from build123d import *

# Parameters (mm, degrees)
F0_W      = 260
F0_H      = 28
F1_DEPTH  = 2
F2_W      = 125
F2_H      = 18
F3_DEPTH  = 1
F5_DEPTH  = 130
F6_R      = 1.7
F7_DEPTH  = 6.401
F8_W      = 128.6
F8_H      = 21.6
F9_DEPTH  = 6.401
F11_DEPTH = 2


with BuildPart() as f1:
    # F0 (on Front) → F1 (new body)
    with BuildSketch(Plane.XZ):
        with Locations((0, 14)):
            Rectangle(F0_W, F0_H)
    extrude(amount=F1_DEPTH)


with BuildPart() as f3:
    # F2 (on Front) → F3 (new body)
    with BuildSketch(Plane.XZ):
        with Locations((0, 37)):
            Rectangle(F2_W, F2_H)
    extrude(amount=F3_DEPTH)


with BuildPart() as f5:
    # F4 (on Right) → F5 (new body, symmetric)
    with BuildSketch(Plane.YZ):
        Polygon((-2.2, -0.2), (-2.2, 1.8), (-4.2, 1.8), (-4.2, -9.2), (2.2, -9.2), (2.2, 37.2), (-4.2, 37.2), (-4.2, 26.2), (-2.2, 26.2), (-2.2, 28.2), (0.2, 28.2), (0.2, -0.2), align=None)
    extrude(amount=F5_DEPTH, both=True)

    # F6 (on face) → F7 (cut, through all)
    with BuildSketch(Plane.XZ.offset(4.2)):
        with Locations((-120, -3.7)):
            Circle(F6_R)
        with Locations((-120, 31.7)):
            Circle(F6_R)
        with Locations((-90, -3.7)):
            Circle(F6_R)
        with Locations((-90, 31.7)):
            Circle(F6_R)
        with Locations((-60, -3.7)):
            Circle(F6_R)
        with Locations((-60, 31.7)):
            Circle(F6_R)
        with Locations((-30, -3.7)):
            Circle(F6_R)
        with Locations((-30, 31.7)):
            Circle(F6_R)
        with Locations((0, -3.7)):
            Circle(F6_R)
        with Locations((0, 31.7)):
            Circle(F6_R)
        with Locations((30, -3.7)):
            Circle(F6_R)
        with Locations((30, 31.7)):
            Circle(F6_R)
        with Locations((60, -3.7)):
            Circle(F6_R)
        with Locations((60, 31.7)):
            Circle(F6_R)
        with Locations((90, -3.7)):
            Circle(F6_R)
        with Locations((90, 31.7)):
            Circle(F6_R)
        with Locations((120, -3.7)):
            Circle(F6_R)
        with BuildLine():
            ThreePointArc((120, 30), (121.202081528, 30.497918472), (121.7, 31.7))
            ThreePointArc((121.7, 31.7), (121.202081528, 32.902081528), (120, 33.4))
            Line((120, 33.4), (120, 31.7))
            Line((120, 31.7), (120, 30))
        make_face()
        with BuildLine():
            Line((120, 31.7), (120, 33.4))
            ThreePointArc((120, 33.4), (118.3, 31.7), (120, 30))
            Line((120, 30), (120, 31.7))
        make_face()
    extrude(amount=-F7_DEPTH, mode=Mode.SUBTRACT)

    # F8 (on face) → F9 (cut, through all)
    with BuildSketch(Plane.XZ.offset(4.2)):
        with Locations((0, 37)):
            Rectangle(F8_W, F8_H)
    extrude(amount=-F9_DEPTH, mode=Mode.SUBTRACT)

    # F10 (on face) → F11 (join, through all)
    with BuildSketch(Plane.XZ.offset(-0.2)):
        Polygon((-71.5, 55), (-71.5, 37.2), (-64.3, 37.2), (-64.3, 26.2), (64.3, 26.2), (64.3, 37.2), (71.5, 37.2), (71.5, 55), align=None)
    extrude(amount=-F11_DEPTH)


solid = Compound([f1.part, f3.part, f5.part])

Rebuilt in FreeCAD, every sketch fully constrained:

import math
import FreeCAD as App
import Part
import Sketcher
from FreeCAD import Vector


def add_polygon(sketch, points):
    """Adds a closed chain of lines whose ends are joined by coincident constraints."""
    first, n = sketch.GeometryCount, len(points)
    for a, b in zip(points, points[1:] + points[:1]):
        sketch.addGeometry(Part.LineSegment(App.Vector(*a, 0), App.Vector(*b, 0)), False)
    for i in range(n):
        sketch.addConstraint(Sketcher.Constraint("Coincident", first + i, 2, first + (i + 1) % n, 1))

doc = App.newDocument("Part")
params = doc.addObject("Spreadsheet::Sheet", "Params")
for row, (alias, value) in enumerate([
    ("sketch1_width", "260 mm"),
    ("sketch1_height", "28 mm"),
    ("pad1_length", "2 mm"),
    ("sketch2_width", "125 mm"),
    ("sketch2_height", "18 mm"),
    ("pad2_length", "1 mm"),
    ("sketch3_width", "2 mm"),
    ("sketch3_height", "11 mm"),
    ("sketch3_width2", "6.4 mm"),
    ("sketch3_width3", "2.4 mm"),
    ("sketch3_height2", "46.4 mm"),
    ("pad3_length", "260 mm"),
    ("sketch4_diameter", "3.4 mm"),
    ("sketch5_width", "128.6 mm"),
    ("sketch5_height", "21.6 mm"),
    ("sketch6_width", "143 mm"),
    ("sketch6_height", "11 mm"),
    ("sketch6_width2", "7.2 mm"),
    ("sketch6_height2", "17.8 mm"),
    ("pad4_length", "2 mm"),
], start=1):
    params.set(f"A{row}", alias)
    params.set(f"B{row}", "=" + value)
    params.setAlias(f"B{row}", alias)

body = doc.addObject("PartDesign::Body", "Body")

# Sketch on XZ plane
sketch1 = doc.addObject("Sketcher::SketchObject", "Sketch")
body.addObject(sketch1)
sketch1.AttachmentSupport = (doc.XZ_Plane, [""])
sketch1.MapMode = "FlatFace"
add_polygon(sketch1, [(-130, 28), (-130, 0), (130, 0), (130, 28)])  # lines 0-3
sketch1.addConstraint([
    Sketcher.Constraint("Vertical", 0),
    Sketcher.Constraint("Horizontal", 1),
    Sketcher.Constraint("Vertical", 2),
    Sketcher.Constraint("Horizontal", 3),
    Sketcher.Constraint("Symmetric", 0, 2, 1, 2, -1, 1),
    Sketcher.Constraint("DistanceX", 1, 1, 1, 2, 260.0),
    Sketcher.Constraint("DistanceY", 0, 2, 0, 1, 28.0),
])
sketch1.setExpression("Constraints[9]", "Params.sketch1_width")
sketch1.setExpression("Constraints[10]", "Params.sketch1_height")
pad1 = doc.addObject("PartDesign::Pad", "Pad")
body.addObject(pad1)
pad1.Profile = sketch1
pad1.setExpression("Length", "Params.pad1_length")
body2 = doc.addObject("PartDesign::Body", "Body001")

# Sketch on XZ plane
sketch2 = doc.addObject("Sketcher::SketchObject", "Sketch001")
body2.addObject(sketch2)
sketch2.AttachmentSupport = (doc.getObject("XZ_Plane001"), [""])
sketch2.MapMode = "FlatFace"
add_polygon(sketch2, [(-62, 46), (-62, 28), (62, 28), (62, 46)])  # lines 0-3
sketch2.addConstraint([
    Sketcher.Constraint("Vertical", 0),
    Sketcher.Constraint("Horizontal", 1),
    Sketcher.Constraint("Vertical", 2),
    Sketcher.Constraint("Horizontal", 3),
    Sketcher.Constraint("DistanceX", 1, 1, 1, 2, 125.0),
    Sketcher.Constraint("DistanceY", 0, 2, 0, 1, 18.0),
    Sketcher.Constraint("DistanceY", -1, 1, 0, 2, 28.0),
    Sketcher.Constraint("DistanceX", 0, 2, -1, 1, 62.5),
])
sketch2.setExpression("Constraints[8]", "Params.sketch2_width")
sketch2.setExpression("Constraints[9]", "Params.sketch2_height")
pad2 = doc.addObject("PartDesign::Pad", "Pad001")
body2.addObject(pad2)
pad2.Profile = sketch2
pad2.setExpression("Length", "Params.pad2_length")
body3 = doc.addObject("PartDesign::Body", "Body002")

# Sketch on YZ plane
sketch3 = doc.addObject("Sketcher::SketchObject", "Sketch002")
body3.addObject(sketch3)
sketch3.AttachmentSupport = (doc.getObject("YZ_Plane002"), [""])
sketch3.MapMode = "FlatFace"
add_polygon(sketch3, [(-2.2, -0.2), (-2.2, 1.8), (-4.2, 1.8), (-4.2, -9.2), (2.2, -9.2), (2.2, 37.2), (-4.2, 37.2), (-4.2, 26.2), (-2.2, 26.2), (-2.2, 28.2), (0.2, 28.2), (0.2, -0.2)])  # lines 0-11
sketch3.addConstraint([
    Sketcher.Constraint("Vertical", 0),
    Sketcher.Constraint("Horizontal", 1),
    Sketcher.Constraint("Vertical", 2),
    Sketcher.Constraint("Horizontal", 3),
    Sketcher.Constraint("Vertical", 4),
    Sketcher.Constraint("Horizontal", 5),
    Sketcher.Constraint("Vertical", 6),
    Sketcher.Constraint("Horizontal", 7),
    Sketcher.Constraint("Vertical", 8),
    Sketcher.Constraint("Horizontal", 9),
    Sketcher.Constraint("Vertical", 10),
    Sketcher.Constraint("Horizontal", 11),
    Sketcher.Constraint("Vertical", 2, 2, 5, 2),
    Sketcher.Constraint("Vertical", 0, 2, 7, 2),
    Sketcher.Constraint("Equal", 7, 0),
    Sketcher.Constraint("Equal", 2, 6),
    Sketcher.Constraint("Equal", 0, 8),
    Sketcher.Constraint("DistanceX", 1, 2, 1, 1, 2.0),
    Sketcher.Constraint("DistanceY", 2, 2, 2, 1, 11.0),
    Sketcher.Constraint("DistanceX", 3, 1, 3, 2, 6.4),
    Sketcher.Constraint("DistanceX", 9, 1, 9, 2, 2.4),
    Sketcher.Constraint("DistanceY", 4, 1, 4, 2, 46.4),
    Sketcher.Constraint("DistanceX", 0, 2, -1, 1, 2.2),
    Sketcher.Constraint("DistanceY", -1, 1, 0, 2, 1.8),
])
sketch3.setExpression("Constraints[29]", "Params.sketch3_width")
sketch3.setExpression("Constraints[30]", "Params.sketch3_height")
sketch3.setExpression("Constraints[31]", "Params.sketch3_width2")
sketch3.setExpression("Constraints[32]", "Params.sketch3_width3")
sketch3.setExpression("Constraints[33]", "Params.sketch3_height2")
pad3 = doc.addObject("PartDesign::Pad", "Pad002")
body3.addObject(pad3)
pad3.Profile = sketch3
pad3.setExpression("Length", "Params.pad3_length")
pad3.Midplane = True

# Sketch on XZ plane
sketch4 = doc.addObject("Sketcher::SketchObject", "Sketch003")
body3.addObject(sketch4)
sketch4.AttachmentSupport = (doc.getObject("XZ_Plane002"), [""])
sketch4.MapMode = "FlatFace"
sketch4.AttachmentOffset = App.Placement(Vector(0, 0, 4.2), App.Rotation())
sketch4.addGeometry([
    Part.Circle(Vector(-120, -3.7, 0), Vector(0, 0, 1), 1.7),  # 0
    Part.Circle(Vector(-120, 31.7, 0), Vector(0, 0, 1), 1.7),  # 1
    Part.Circle(Vector(-90, -3.7, 0), Vector(0, 0, 1), 1.7),  # 2
    Part.Circle(Vector(-90, 31.7, 0), Vector(0, 0, 1), 1.7),  # 3
    Part.Circle(Vector(-60, -3.7, 0), Vector(0, 0, 1), 1.7),  # 4
    Part.Circle(Vector(-60, 31.7, 0), Vector(0, 0, 1), 1.7),  # 5
    Part.Circle(Vector(-30, -3.7, 0), Vector(0, 0, 1), 1.7),  # 6
    Part.Circle(Vector(-30, 31.7, 0), Vector(0, 0, 1), 1.7),  # 7
    Part.Circle(Vector(0, -3.7, 0), Vector(0, 0, 1), 1.7),  # 8
    Part.Circle(Vector(0, 31.7, 0), Vector(0, 0, 1), 1.7),  # 9
    Part.Circle(Vector(30, -3.7, 0), Vector(0, 0, 1), 1.7),  # 10
    Part.Circle(Vector(30, 31.7, 0), Vector(0, 0, 1), 1.7),  # 11
    Part.Circle(Vector(60, -3.7, 0), Vector(0, 0, 1), 1.7),  # 12
    Part.Circle(Vector(60, 31.7, 0), Vector(0, 0, 1), 1.7),  # 13
    Part.Circle(Vector(90, -3.7, 0), Vector(0, 0, 1), 1.7),  # 14
    Part.Circle(Vector(90, 31.7, 0), Vector(0, 0, 1), 1.7),  # 15
    Part.Circle(Vector(120, -3.7, 0), Vector(0, 0, 1), 1.7),  # 16
    Part.ArcOfCircle(Part.Circle(Vector(120, 31.7, 0), Vector(0, 0, 1), 1.7), math.radians(-90), math.radians(0)),  # 17
    Part.ArcOfCircle(Part.Circle(Vector(120, 31.7, 0), Vector(0, 0, 1), 1.7), math.radians(0), math.radians(90)),  # 18
    Part.ArcOfCircle(Part.Circle(Vector(120, 31.7, 0), Vector(0, 0, 1), 1.7), math.radians(90), math.radians(270)),  # 19
], False)
sketch4.addConstraint([
    Sketcher.Constraint("Tangent", 17, 2, 18, 1),
    Sketcher.Constraint("Tangent", 18, 2, 19, 1),
    Sketcher.Constraint("Tangent", 19, 2, 17, 1),
    Sketcher.Constraint("Equal", 0, 1),
    Sketcher.Constraint("Equal", 1, 2),
    Sketcher.Constraint("Equal", 2, 3),
    Sketcher.Constraint("Equal", 3, 4),
    Sketcher.Constraint("Equal", 4, 5),
    Sketcher.Constraint("Equal", 5, 6),
    Sketcher.Constraint("Equal", 6, 7),
    Sketcher.Constraint("Equal", 7, 8),
    Sketcher.Constraint("Equal", 8, 9),
    Sketcher.Constraint("Equal", 9, 10),
    Sketcher.Constraint("Equal", 10, 11),
    Sketcher.Constraint("Equal", 11, 12),
    Sketcher.Constraint("Equal", 12, 13),
    Sketcher.Constraint("Equal", 13, 14),
    Sketcher.Constraint("Equal", 14, 15),
    Sketcher.Constraint("Equal", 15, 16),
    Sketcher.Constraint("Equal", 16, 17),
    Sketcher.Constraint("Symmetric", 6, 3, 10, 3, -2),
    Sketcher.Constraint("Symmetric", 7, 3, 11, 3, -2),
    Sketcher.Constraint("Symmetric", 4, 3, 12, 3, -2),
    Sketcher.Constraint("Symmetric", 5, 3, 13, 3, -2),
    Sketcher.Constraint("Symmetric", 2, 3, 14, 3, -2),
    Sketcher.Constraint("Symmetric", 3, 3, 15, 3, -2),
    Sketcher.Constraint("Symmetric", 0, 3, 16, 3, -2),
    Sketcher.Constraint("Symmetric", 1, 3, 17, 3, -2),
    Sketcher.Constraint("PointOnObject", 8, 3, -2),
    Sketcher.Constraint("PointOnObject", 9, 3, -2),
    Sketcher.Constraint("Horizontal", 0, 3, 2, 3),
    Sketcher.Constraint("Horizontal", 1, 3, 3, 3),
    Sketcher.Constraint("Horizontal", 2, 3, 4, 3),
    Sketcher.Constraint("Horizontal", 3, 3, 5, 3),
    Sketcher.Constraint("Horizontal", 4, 3, 6, 3),
    Sketcher.Constraint("Horizontal", 5, 3, 7, 3),
    Sketcher.Constraint("Horizontal", 6, 3, 8, 3),
    Sketcher.Constraint("Horizontal", 7, 3, 9, 3),
    Sketcher.Constraint("Horizontal", 19, 3, 17, 2),
    Sketcher.Constraint("Vertical", 0, 3, 1, 3),
    Sketcher.Constraint("Vertical", 2, 3, 3, 3),
    Sketcher.Constraint("Vertical", 4, 3, 5, 3),
    Sketcher.Constraint("Vertical", 6, 3, 7, 3),
    Sketcher.Constraint("Vertical", 19, 3, 18, 2),
    Sketcher.Constraint("Vertical", 18, 2, 19, 2),
    Sketcher.Constraint("Diameter", 0, 3.4),
    Sketcher.Constraint("DistanceX", 0, 3, -1, 1, 120.0),
    Sketcher.Constraint("DistanceX", 2, 3, -1, 1, 90.0),
    Sketcher.Constraint("DistanceX", 4, 3, -1, 1, 60.0),
    Sketcher.Constraint("DistanceX", 6, 3, -1, 1, 30.0),
    Sketcher.Constraint("DistanceY", -1, 1, 19, 2, 30.0),
    Sketcher.Constraint("DistanceY", 0, 3, -1, 1, 3.7),
])
sketch4.setExpression("Constraints[45]", "Params.sketch4_diameter")
pocket1 = doc.addObject("PartDesign::Pocket", "Pocket")
body3.addObject(pocket1)
pocket1.Profile = sketch4
pocket1.Type = "ThroughAll"

# Sketch on XZ plane
sketch5 = doc.addObject("Sketcher::SketchObject", "Sketch004")
body3.addObject(sketch5)
sketch5.AttachmentSupport = (doc.getObject("XZ_Plane002"), [""])
sketch5.MapMode = "FlatFace"
sketch5.AttachmentOffset = App.Placement(Vector(0, 0, 4.2), App.Rotation())
add_polygon(sketch5, [(-64, 48), (-64, 26), (64, 26), (64, 48)])  # lines 0-3
sketch5.addConstraint([
    Sketcher.Constraint("Vertical", 0),
    Sketcher.Constraint("Horizontal", 1),
    Sketcher.Constraint("Vertical", 2),
    Sketcher.Constraint("Horizontal", 3),
    Sketcher.Constraint("DistanceX", 1, 1, 1, 2, 128.6),
    Sketcher.Constraint("DistanceY", 0, 2, 0, 1, 21.6),
    Sketcher.Constraint("DistanceX", 0, 2, -1, 1, 64.3),
    Sketcher.Constraint("DistanceY", -1, 1, 0, 2, 26.2),
])
sketch5.setExpression("Constraints[8]", "Params.sketch5_width")
sketch5.setExpression("Constraints[9]", "Params.sketch5_height")
pocket2 = doc.addObject("PartDesign::Pocket", "Pocket001")
body3.addObject(pocket2)
pocket2.Profile = sketch5
pocket2.Type = "ThroughAll"

# Sketch on XZ plane
sketch6 = doc.addObject("Sketcher::SketchObject", "Sketch005")
body3.addObject(sketch6)
sketch6.AttachmentSupport = (doc.getObject("XZ_Plane002"), [""])
sketch6.MapMode = "FlatFace"
sketch6.AttachmentOffset = App.Placement(Vector(0, 0, -0.2), App.Rotation())
add_polygon(sketch6, [(-72, 55), (-72, 37), (-64, 37), (-64, 26), (64, 26), (64, 37), (72, 37), (72, 55)])  # lines 0-7
sketch6.addConstraint([
    Sketcher.Constraint("Vertical", 0),
    Sketcher.Constraint("Horizontal", 1),
    Sketcher.Constraint("Vertical", 2),
    Sketcher.Constraint("Horizontal", 3),
    Sketcher.Constraint("Vertical", 4),
    Sketcher.Constraint("Horizontal", 5),
    Sketcher.Constraint("Vertical", 6),
    Sketcher.Constraint("Horizontal", 7),
    Sketcher.Constraint("Symmetric", 1, 2, 4, 2, -2),
    Sketcher.Constraint("Equal", 1, 5),
    Sketcher.Constraint("DistanceX", 7, 2, 7, 1, 143.0),
    Sketcher.Constraint("DistanceY", 2, 2, 2, 1, 11.0),
    Sketcher.Constraint("DistanceX", 1, 1, 1, 2, 7.2),
    Sketcher.Constraint("DistanceY", 0, 2, 0, 1, 17.8),
    Sketcher.Constraint("DistanceY", -1, 1, 6, 2, 55.0),
])
sketch6.setExpression("Constraints[18]", "Params.sketch6_width")
sketch6.setExpression("Constraints[19]", "Params.sketch6_height")
sketch6.setExpression("Constraints[20]", "Params.sketch6_width2")
sketch6.setExpression("Constraints[21]", "Params.sketch6_height2")
pad4 = doc.addObject("PartDesign::Pad", "Pad003")
body3.addObject(pad4)
pad4.Profile = sketch6
pad4.setExpression("Length", "Params.pad4_length")
pad4.Reversed = True

doc.recompute()
